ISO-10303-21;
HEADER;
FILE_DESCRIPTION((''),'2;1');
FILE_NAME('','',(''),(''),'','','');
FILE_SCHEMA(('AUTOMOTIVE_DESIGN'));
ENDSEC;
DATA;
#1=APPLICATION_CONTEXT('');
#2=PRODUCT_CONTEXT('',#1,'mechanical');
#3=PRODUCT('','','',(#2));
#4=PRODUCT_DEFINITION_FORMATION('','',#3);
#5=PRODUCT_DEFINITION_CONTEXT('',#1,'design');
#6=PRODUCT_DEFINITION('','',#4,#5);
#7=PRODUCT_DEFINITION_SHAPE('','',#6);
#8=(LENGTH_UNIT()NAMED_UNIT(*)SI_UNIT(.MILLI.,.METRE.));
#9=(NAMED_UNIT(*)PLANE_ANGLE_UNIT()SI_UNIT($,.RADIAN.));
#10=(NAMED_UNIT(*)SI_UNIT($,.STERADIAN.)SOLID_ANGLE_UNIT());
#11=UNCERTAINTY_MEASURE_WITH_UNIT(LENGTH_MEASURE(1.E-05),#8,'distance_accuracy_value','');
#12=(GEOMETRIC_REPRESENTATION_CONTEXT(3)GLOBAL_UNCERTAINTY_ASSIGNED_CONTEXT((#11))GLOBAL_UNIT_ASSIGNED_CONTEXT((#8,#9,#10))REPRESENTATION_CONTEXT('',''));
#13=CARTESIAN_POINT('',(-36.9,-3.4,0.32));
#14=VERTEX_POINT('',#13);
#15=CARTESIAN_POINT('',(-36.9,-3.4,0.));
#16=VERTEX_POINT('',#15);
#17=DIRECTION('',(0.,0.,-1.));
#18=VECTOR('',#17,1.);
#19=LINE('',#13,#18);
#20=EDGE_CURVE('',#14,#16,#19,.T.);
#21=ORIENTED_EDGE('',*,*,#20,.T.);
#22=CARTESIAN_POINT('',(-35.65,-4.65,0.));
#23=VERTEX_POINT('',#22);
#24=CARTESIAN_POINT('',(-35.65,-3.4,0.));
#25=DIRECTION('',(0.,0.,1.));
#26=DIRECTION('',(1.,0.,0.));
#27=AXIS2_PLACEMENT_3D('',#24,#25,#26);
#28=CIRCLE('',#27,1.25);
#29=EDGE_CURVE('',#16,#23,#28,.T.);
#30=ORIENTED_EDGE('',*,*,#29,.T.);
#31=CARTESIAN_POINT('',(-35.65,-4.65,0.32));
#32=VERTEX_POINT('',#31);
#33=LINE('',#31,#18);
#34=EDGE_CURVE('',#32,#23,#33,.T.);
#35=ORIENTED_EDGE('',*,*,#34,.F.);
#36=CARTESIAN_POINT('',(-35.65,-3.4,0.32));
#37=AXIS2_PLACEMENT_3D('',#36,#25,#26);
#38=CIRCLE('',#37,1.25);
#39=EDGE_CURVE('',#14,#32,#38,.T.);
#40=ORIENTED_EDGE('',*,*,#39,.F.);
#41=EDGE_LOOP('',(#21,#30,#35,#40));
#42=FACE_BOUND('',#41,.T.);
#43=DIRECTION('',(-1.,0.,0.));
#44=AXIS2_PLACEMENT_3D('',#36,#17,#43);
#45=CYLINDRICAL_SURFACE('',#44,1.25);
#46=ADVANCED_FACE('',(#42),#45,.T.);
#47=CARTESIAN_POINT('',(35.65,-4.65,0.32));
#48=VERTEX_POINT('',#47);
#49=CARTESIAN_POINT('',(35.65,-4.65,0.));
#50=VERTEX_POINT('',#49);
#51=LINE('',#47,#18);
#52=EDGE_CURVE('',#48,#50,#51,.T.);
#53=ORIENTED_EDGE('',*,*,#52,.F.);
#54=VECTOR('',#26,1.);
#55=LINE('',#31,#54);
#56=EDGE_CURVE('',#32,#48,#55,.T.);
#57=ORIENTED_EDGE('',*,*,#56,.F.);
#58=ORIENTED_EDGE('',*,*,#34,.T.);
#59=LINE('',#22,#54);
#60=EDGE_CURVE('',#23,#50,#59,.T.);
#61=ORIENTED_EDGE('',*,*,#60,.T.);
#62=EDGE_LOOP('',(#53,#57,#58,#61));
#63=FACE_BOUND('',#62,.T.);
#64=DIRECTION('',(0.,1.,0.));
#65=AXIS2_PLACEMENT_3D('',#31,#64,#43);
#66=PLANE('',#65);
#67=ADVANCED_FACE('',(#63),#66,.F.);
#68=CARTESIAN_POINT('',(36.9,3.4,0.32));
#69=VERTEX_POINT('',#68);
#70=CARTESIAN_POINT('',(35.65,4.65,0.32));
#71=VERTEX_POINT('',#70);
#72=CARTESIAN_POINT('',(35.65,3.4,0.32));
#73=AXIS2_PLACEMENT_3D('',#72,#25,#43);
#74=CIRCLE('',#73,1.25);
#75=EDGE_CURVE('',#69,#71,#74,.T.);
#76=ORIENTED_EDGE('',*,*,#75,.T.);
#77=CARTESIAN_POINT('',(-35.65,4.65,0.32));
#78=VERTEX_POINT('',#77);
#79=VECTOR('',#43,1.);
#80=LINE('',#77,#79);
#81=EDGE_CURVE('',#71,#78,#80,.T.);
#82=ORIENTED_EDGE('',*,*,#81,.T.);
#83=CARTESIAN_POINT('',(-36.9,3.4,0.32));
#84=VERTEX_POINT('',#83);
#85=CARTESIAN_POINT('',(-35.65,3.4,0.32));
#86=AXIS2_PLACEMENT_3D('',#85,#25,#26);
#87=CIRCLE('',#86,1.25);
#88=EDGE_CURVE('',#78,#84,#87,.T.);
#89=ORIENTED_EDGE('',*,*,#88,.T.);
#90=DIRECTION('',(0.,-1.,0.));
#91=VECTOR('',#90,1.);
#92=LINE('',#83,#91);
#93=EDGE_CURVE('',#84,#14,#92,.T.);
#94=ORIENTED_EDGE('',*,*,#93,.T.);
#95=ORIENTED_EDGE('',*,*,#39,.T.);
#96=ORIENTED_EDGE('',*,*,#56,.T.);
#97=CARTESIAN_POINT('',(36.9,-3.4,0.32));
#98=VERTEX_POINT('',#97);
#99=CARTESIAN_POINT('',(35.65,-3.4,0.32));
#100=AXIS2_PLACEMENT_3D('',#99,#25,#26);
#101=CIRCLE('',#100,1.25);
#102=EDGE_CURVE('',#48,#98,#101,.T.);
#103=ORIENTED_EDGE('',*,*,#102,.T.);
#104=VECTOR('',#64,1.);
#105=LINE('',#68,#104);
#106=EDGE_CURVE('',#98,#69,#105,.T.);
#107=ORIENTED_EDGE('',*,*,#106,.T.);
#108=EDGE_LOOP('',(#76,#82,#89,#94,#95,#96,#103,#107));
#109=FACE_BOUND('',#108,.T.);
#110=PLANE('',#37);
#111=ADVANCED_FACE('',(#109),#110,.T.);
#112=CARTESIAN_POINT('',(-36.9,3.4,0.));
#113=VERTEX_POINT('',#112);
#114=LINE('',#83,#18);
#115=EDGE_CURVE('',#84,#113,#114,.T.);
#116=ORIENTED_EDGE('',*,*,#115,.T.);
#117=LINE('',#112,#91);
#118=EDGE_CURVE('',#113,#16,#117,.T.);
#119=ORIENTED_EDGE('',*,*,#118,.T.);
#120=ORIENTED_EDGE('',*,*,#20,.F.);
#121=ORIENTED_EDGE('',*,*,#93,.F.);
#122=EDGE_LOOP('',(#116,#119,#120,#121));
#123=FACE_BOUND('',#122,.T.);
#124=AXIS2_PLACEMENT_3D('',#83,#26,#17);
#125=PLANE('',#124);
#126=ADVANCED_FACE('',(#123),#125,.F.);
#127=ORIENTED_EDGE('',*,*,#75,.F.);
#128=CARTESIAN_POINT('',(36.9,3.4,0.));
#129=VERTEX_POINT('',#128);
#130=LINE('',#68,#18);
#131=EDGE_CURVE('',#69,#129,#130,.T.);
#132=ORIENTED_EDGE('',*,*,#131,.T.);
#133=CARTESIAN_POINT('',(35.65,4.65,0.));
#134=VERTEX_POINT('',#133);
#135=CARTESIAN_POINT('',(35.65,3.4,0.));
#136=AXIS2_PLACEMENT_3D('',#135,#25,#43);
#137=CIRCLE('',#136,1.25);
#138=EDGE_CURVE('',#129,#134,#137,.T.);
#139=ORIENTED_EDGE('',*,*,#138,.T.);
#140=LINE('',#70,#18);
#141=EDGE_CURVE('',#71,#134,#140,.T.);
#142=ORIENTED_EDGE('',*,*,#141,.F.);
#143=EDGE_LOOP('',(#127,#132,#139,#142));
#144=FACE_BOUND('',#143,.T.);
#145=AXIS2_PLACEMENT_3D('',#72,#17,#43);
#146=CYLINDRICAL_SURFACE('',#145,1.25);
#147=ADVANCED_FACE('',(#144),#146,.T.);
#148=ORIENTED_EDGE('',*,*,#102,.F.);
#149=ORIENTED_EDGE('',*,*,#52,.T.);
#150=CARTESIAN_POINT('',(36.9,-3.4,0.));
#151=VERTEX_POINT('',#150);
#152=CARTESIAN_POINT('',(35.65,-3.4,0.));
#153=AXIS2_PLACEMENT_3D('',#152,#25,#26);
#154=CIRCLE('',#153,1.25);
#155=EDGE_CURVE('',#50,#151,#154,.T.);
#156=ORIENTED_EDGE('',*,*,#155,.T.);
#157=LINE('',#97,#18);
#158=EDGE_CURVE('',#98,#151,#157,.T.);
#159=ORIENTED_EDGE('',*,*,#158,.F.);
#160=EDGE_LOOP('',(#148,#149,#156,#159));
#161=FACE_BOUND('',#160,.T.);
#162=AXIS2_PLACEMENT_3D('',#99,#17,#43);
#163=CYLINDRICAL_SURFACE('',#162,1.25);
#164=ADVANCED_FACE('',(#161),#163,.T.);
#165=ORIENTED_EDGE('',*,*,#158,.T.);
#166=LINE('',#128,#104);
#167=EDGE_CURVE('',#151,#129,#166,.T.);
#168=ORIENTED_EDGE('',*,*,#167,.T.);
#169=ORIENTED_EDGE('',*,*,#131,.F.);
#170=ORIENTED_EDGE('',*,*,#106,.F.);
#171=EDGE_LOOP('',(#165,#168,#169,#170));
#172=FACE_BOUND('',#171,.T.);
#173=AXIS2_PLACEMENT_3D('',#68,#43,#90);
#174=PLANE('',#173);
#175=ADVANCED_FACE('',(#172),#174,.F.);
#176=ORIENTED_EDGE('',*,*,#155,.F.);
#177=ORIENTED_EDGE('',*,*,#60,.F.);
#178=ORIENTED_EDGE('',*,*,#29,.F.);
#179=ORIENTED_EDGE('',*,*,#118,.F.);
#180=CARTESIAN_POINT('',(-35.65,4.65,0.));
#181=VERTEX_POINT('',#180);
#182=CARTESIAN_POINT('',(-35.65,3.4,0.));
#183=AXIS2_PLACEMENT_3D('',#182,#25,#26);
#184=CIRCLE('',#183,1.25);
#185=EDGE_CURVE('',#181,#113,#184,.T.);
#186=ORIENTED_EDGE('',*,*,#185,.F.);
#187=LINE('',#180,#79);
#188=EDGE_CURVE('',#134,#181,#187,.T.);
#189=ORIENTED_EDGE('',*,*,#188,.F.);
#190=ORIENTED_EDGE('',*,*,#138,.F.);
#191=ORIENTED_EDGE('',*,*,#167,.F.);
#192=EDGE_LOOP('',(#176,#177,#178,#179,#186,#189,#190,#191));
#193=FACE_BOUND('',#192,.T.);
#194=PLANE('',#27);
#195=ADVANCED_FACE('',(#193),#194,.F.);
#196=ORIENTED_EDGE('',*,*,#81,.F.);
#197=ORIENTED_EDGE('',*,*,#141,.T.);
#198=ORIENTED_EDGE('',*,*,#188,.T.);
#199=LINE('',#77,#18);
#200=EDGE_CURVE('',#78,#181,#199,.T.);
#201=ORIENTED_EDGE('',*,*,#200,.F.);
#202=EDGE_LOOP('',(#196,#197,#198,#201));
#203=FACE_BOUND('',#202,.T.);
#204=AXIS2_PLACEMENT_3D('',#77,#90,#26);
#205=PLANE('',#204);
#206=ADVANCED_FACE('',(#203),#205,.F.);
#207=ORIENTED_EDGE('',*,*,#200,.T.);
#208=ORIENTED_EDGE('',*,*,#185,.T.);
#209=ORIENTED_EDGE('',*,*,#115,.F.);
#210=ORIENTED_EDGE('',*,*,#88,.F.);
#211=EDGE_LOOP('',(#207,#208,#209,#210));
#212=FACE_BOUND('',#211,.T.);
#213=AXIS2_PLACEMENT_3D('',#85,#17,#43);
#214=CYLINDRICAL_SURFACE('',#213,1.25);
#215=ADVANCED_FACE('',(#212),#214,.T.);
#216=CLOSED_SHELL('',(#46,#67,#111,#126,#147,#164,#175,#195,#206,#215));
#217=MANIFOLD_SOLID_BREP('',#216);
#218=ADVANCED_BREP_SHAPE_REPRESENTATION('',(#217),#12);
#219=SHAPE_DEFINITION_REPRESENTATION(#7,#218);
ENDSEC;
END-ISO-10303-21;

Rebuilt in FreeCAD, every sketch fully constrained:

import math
import FreeCAD as App
import Part
import Sketcher
from FreeCAD import Vector

doc = App.newDocument("Part")
body = doc.addObject("PartDesign::Body", "Body")

sketch1 = doc.addObject("Sketcher::SketchObject", "Sketch")
body.addObject(sketch1)
sketch1.AttachmentSupport = (doc.XY_Plane, [""])
sketch1.MapMode = "FlatFace"
sketch1.addGeometry(Part.LineSegment(Vector(35.65, 4.65, 0), Vector(-35.65, 4.65, 0)), False)
sketch1.addGeometry(Part.ArcOfCircle(Part.Circle(Vector(-35.65, 3.4, 0), Vector(0, 0, 1), 1.25), math.radians(90), math.radians(180)), False)
sketch1.addGeometry(Part.LineSegment(Vector(-36.9, 3.4, 0), Vector(-36.9, -3.4, 0)), False)
sketch1.addGeometry(Part.ArcOfCircle(Part.Circle(Vector(-35.65, -3.4, 0), Vector(0, 0, 1), 1.25), math.radians(-180), math.radians(-90)), False)
sketch1.addGeometry(Part.LineSegment(Vector(-35.65, -4.65, 0), Vector(35.65, -4.65, 0)), False)
sketch1.addGeometry(Part.ArcOfCircle(Part.Circle(Vector(35.65, -3.4, 0), Vector(0, 0, 1), 1.25), math.radians(-90), math.radians(0)), False)
sketch1.addGeometry(Part.LineSegment(Vector(36.9, -3.4, 0), Vector(36.9, 3.4, 0)), False)
sketch1.addGeometry(Part.ArcOfCircle(Part.Circle(Vector(35.65, 3.4, 0), Vector(0, 0, 1), 1.25), math.radians(0), math.radians(90)), False)
sketch1.addConstraint(Sketcher.Constraint("Tangent", 0, 2, 1, 1))
sketch1.addConstraint(Sketcher.Constraint("Tangent", 1, 2, 2, 1))
sketch1.addConstraint(Sketcher.Constraint("Tangent", 2, 2, 3, 1))
sketch1.addConstraint(Sketcher.Constraint("Tangent", 3, 2, 4, 1))
sketch1.addConstraint(Sketcher.Constraint("Tangent", 4, 2, 5, 1))
sketch1.addConstraint(Sketcher.Constraint("Tangent", 5, 2, 6, 1))
sketch1.addConstraint(Sketcher.Constraint("Tangent", 6, 2, 7, 1))
sketch1.addConstraint(Sketcher.Constraint("Tangent", 7, 2, 0, 1))
sketch1.addConstraint(Sketcher.Constraint("Horizontal", 0))
sketch1.addConstraint(Sketcher.Constraint("Vertical", 2))
sketch1.addConstraint(Sketcher.Constraint("Horizontal", 4))
sketch1.addConstraint(Sketcher.Constraint("Vertical", 6))
sketch1.addConstraint(Sketcher.Constraint("Equal", 1, 3))
sketch1.addConstraint(Sketcher.Constraint("Equal", 3, 5))
sketch1.addConstraint(Sketcher.Constraint("Equal", 5, 7))
sketch1.addConstraint(Sketcher.Constraint("Symmetric", 1, 3, 5, 3, -1, 1))
sketch1.addConstraint(Sketcher.Constraint("Radius", 1, 1.25))
sketch1.addConstraint(Sketcher.Constraint("DistanceX", 0, 2, 0, 1, 71.3))
sketch1.addConstraint(Sketcher.Constraint("DistanceY", 2, 2, 2, 1, 6.8))
pad1 = doc.addObject("PartDesign::Pad", "Pad")
body.addObject(pad1)
pad1.Profile = sketch1
pad1.Length = 0.32

doc.recompute()
